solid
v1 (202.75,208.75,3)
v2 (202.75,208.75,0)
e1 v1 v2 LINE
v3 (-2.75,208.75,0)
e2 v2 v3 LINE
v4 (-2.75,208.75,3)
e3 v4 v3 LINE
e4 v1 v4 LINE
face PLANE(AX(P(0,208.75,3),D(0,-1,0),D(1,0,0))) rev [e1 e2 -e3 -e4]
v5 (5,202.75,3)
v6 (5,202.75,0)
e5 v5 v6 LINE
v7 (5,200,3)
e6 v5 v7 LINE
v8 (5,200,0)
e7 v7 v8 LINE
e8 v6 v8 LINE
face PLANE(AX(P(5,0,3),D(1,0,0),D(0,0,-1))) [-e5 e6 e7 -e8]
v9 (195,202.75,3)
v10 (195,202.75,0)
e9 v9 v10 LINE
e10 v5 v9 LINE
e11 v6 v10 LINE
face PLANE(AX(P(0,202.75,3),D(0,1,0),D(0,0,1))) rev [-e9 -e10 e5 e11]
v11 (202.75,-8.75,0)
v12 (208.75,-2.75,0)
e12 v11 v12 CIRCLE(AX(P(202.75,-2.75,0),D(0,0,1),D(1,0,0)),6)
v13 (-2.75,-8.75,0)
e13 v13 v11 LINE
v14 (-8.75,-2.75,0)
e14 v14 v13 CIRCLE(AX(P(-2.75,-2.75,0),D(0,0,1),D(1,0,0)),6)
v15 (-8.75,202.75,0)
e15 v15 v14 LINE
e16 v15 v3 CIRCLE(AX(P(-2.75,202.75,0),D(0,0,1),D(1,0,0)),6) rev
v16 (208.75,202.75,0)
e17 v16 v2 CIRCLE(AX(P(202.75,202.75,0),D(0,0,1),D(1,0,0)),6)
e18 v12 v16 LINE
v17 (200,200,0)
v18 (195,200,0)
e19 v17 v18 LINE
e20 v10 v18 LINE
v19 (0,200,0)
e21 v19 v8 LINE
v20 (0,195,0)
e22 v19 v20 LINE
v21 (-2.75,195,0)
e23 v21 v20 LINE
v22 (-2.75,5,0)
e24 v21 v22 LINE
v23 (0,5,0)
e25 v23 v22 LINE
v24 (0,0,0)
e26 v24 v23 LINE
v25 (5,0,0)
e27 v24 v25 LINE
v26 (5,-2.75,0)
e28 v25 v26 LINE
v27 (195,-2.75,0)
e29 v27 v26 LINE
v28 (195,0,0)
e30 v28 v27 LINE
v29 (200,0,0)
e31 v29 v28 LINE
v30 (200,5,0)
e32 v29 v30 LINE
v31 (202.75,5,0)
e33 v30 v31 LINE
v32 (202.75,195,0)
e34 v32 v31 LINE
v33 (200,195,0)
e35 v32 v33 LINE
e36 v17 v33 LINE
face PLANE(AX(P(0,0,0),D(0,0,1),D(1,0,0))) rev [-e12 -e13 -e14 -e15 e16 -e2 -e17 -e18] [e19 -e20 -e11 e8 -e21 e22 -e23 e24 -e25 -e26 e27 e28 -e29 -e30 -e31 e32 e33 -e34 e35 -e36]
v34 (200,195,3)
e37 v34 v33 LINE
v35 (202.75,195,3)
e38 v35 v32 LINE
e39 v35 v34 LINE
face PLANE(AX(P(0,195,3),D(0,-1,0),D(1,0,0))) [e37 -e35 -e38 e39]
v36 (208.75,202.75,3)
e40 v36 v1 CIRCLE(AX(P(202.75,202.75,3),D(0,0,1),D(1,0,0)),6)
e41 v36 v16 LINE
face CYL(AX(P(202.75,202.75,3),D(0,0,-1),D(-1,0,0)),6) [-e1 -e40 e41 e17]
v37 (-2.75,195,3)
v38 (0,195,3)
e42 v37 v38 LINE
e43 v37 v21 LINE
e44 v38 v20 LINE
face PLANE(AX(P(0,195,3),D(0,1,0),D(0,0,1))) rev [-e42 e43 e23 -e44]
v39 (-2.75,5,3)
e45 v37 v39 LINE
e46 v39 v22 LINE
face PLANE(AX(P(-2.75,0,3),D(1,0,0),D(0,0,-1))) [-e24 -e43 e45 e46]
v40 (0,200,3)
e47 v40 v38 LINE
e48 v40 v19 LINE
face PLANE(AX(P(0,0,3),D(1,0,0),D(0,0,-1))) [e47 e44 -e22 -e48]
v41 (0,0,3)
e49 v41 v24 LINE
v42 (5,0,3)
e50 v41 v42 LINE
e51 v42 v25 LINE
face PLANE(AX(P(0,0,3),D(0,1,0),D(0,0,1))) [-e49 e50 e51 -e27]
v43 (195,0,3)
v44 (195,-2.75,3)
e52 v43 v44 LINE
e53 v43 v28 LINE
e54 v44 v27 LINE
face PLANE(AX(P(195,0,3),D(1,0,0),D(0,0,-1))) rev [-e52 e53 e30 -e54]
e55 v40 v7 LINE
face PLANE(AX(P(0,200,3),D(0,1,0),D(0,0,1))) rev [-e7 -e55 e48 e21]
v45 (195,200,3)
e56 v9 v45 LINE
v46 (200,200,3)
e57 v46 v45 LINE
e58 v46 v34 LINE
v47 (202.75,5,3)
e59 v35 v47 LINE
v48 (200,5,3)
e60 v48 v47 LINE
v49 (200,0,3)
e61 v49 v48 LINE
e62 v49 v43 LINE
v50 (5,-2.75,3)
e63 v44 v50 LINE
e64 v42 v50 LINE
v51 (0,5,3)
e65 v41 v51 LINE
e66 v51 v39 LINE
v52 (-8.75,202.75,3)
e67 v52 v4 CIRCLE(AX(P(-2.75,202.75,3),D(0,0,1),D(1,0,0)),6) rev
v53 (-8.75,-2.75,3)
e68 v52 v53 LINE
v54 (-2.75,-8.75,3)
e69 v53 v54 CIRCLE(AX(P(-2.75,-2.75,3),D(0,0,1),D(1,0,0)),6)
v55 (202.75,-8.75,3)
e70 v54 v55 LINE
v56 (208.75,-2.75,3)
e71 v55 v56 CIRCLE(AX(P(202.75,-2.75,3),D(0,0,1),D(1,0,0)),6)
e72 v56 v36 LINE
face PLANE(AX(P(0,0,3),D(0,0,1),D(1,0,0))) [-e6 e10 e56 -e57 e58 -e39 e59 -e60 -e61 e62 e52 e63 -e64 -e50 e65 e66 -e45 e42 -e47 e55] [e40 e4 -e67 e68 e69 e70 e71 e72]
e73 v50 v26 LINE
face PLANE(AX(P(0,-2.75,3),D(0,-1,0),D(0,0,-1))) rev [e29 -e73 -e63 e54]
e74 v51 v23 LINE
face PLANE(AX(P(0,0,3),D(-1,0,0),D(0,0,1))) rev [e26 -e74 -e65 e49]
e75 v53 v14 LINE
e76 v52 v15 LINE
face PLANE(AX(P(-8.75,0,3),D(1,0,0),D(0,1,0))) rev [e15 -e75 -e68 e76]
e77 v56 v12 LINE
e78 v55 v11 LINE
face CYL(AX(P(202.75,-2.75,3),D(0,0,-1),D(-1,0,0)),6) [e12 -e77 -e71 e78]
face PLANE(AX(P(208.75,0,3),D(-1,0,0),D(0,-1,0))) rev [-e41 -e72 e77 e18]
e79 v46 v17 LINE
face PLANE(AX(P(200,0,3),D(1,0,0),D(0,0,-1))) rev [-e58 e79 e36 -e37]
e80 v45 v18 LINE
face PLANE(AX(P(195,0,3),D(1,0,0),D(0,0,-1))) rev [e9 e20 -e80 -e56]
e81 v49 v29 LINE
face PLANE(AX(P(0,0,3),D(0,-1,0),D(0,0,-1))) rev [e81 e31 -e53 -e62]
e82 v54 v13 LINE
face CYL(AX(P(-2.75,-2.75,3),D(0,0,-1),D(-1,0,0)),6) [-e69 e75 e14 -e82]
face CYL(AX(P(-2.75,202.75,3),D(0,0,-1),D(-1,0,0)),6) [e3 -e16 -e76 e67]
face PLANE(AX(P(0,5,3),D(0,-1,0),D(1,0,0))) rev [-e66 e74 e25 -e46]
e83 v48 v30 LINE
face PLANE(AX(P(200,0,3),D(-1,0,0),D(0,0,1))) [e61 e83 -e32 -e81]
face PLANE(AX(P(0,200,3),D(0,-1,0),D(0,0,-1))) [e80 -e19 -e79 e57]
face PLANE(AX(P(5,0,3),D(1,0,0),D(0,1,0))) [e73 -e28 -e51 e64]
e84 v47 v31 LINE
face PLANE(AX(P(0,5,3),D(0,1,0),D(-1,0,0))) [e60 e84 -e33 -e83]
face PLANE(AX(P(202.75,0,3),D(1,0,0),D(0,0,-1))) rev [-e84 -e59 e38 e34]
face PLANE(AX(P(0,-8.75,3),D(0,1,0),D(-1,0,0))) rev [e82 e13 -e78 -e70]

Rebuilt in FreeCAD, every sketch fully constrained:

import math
import FreeCAD as App
import Part
import Sketcher


def add_polygon(sketch, points):
    """Adds a closed chain of lines whose ends are joined by coincident constraints."""
    first, n = sketch.GeometryCount, len(points)
    for a, b in zip(points, points[1:] + points[:1]):
        sketch.addGeometry(Part.LineSegment(App.Vector(*a, 0), App.Vector(*b, 0)), False)
    for i in range(n):
        sketch.addConstraint(Sketcher.Constraint("Coincident", first + i, 2, first + (i + 1) % n, 1))

doc = App.newDocument("Part")
body = doc.addObject("PartDesign::Body", "Body")

sketch1 = body.newObject("Sketcher::SketchObject", "Sketch")
sketch1.AttachmentSupport = (doc.getObject("XY_Plane"), [""])
sketch1.MapMode = "FlatFace"
sketch1.addGeometry(Part.LineSegment(App.Vector(-8.75, 202.75, 0), App.Vector(-8.75, -2.75, 0)), False)
sketch1.addGeometry(Part.ArcOfCircle(Part.Circle(App.Vector(-2.75, -2.75, 0), App.Vector(0, 0, 1), 6), math.radians(180), math.radians(270)), False)
sketch1.addGeometry(Part.LineSegment(App.Vector(-2.75, -8.75, 0), App.Vector(202.75, -8.75, 0)), False)
sketch1.addGeometry(Part.ArcOfCircle(Part.Circle(App.Vector(202.75, -2.75, 0), App.Vector(0, 0, 1), 6), math.radians(-90), math.radians(0)), False)
sketch1.addGeometry(Part.LineSegment(App.Vector(208.75, -2.75, 0), App.Vector(208.75, 202.75, 0)), False)
sketch1.addGeometry(Part.ArcOfCircle(Part.Circle(App.Vector(202.75, 202.75, 0), App.Vector(0, 0, 1), 6), math.radians(0), math.radians(90)), False)
sketch1.addGeometry(Part.LineSegment(App.Vector(202.75, 208.75, 0), App.Vector(-2.75, 208.75, 0)), False)
sketch1.addGeometry(Part.ArcOfCircle(Part.Circle(App.Vector(-2.75, 202.75, 0), App.Vector(0, 0, 1), 6), math.radians(90), math.radians(180)), False)
add_polygon(sketch1, [(5, 200), (5, 202.75), (195, 202.75), (195, 200), (200, 200), (200, 195), (202.75, 195), (202.75, 5), (200, 5), (200, 0), (195, 0), (195, -2.75), (5, -2.75), (5, 0), (0, 0), (0, 5), (-2.75, 5), (-2.75, 195), (0, 195), (0, 200)])
sketch1.addConstraint(Sketcher.Constraint("Tangent", 0, 2, 1, 1))
sketch1.addConstraint(Sketcher.Constraint("Tangent", 1, 2, 2, 1))
sketch1.addConstraint(Sketcher.Constraint("Tangent", 2, 2, 3, 1))
sketch1.addConstraint(Sketcher.Constraint("Tangent", 3, 2, 4, 1))
sketch1.addConstraint(Sketcher.Constraint("Tangent", 4, 2, 5, 1))
sketch1.addConstraint(Sketcher.Constraint("Tangent", 5, 2, 6, 1))
sketch1.addConstraint(Sketcher.Constraint("Tangent", 6, 2, 7, 1))
sketch1.addConstraint(Sketcher.Constraint("Tangent", 7, 2, 0, 1))
sketch1.addConstraint(Sketcher.Constraint("Vertical", 0))
sketch1.addConstraint(Sketcher.Constraint("Horizontal", 2))
sketch1.addConstraint(Sketcher.Constraint("Vertical", 4))
sketch1.addConstraint(Sketcher.Constraint("Horizontal", 6))
sketch1.addConstraint(Sketcher.Constraint("Vertical", 8))
sketch1.addConstraint(Sketcher.Constraint("Horizontal", 9))
sketch1.addConstraint(Sketcher.Constraint("Vertical", 10))
sketch1.addConstraint(Sketcher.Constraint("Horizontal", 11))
sketch1.addConstraint(Sketcher.Constraint("Vertical", 12))
sketch1.addConstraint(Sketcher.Constraint("Horizontal", 13))
sketch1.addConstraint(Sketcher.Constraint("Vertical", 14))
sketch1.addConstraint(Sketcher.Constraint("Horizontal", 15))
sketch1.addConstraint(Sketcher.Constraint("Vertical", 16))
sketch1.addConstraint(Sketcher.Constraint("Horizontal", 17))
sketch1.addConstraint(Sketcher.Constraint("Vertical", 18))
sketch1.addConstraint(Sketcher.Constraint("Horizontal", 19))
sketch1.addConstraint(Sketcher.Constraint("Vertical", 20))
sketch1.addConstraint(Sketcher.Constraint("Horizontal", 21))
sketch1.addConstraint(Sketcher.Constraint("Vertical", 22))
sketch1.addConstraint(Sketcher.Constraint("Horizontal", 23))
sketch1.addConstraint(Sketcher.Constraint("Vertical", 24))
sketch1.addConstraint(Sketcher.Constraint("Horizontal", 25))
sketch1.addConstraint(Sketcher.Constraint("Vertical", 26))
sketch1.addConstraint(Sketcher.Constraint("Horizontal", 27))
sketch1.addConstraint(Sketcher.Constraint("Coincident", 21, 2, -1, 1))
sketch1.addConstraint(Sketcher.Constraint("Equal", 1, 3))
sketch1.addConstraint(Sketcher.Constraint("Equal", 3, 5))
sketch1.addConstraint(Sketcher.Constraint("Equal", 5, 7))
sketch1.addConstraint(Sketcher.Constraint("PointOnObject", 16, 2, -1))
sketch1.addConstraint(Sketcher.Constraint("PointOnObject", 25, 2, -2))
sketch1.addConstraint(Sketcher.Constraint("Horizontal", 7, 2, 8, 2))
sketch1.addConstraint(Sketcher.Constraint("Horizontal", 3, 2, 18, 2))
sketch1.addConstraint(Sketcher.Constraint("Horizontal", 15, 2, 22, 2))
sketch1.addConstraint(Sketcher.Constraint("Horizontal", 13, 2, 24, 2))
sketch1.addConstraint(Sketcher.Constraint("Horizontal", 11, 2, 26, 2))
sketch1.addConstraint(Sketcher.Constraint("Vertical", 5, 2, 13, 2))
sketch1.addConstraint(Sketcher.Constraint("Vertical", 12, 2, 15, 2))
sketch1.addConstraint(Sketcher.Constraint("Vertical", 10, 2, 17, 2))
sketch1.addConstraint(Sketcher.Constraint("Vertical", 8, 2, 19, 2))
sketch1.addConstraint(Sketcher.Constraint("Vertical", 6, 2, 23, 2))
sketch1.addConstraint(Sketcher.Constraint("Equal", 17, 21))
sketch1.addConstraint(Sketcher.Constraint("Equal", 15, 23))
sketch1.addConstraint(Sketcher.Constraint("Equal", 6, 0))
sketch1.addConstraint(Sketcher.Constraint("Equal", 25, 8))
sketch1.addConstraint(Sketcher.Constraint("Equal", 27, 12))
sketch1.addConstraint(Sketcher.Constraint("Equal", 19, 14))
sketch1.addConstraint(Sketcher.Constraint("Equal", 12, 16))
sketch1.addConstraint(Sketcher.Constraint("Radius", 1, 6.0))
sketch1.addConstraint(Sketcher.Constraint("DistanceX", 9, 1, 9, 2, 190.0))
sketch1.addConstraint(Sketcher.Constraint("DistanceX", 11, 1, 11, 2, 5.0))
sketch1.addConstraint(Sketcher.Constraint("DistanceX", 2, 1, 2, 2, 205.5))
pad1 = body.newObject("PartDesign::Pad", "Pad")
pad1.Profile = sketch1
pad1.Length = 3

doc.recompute()
